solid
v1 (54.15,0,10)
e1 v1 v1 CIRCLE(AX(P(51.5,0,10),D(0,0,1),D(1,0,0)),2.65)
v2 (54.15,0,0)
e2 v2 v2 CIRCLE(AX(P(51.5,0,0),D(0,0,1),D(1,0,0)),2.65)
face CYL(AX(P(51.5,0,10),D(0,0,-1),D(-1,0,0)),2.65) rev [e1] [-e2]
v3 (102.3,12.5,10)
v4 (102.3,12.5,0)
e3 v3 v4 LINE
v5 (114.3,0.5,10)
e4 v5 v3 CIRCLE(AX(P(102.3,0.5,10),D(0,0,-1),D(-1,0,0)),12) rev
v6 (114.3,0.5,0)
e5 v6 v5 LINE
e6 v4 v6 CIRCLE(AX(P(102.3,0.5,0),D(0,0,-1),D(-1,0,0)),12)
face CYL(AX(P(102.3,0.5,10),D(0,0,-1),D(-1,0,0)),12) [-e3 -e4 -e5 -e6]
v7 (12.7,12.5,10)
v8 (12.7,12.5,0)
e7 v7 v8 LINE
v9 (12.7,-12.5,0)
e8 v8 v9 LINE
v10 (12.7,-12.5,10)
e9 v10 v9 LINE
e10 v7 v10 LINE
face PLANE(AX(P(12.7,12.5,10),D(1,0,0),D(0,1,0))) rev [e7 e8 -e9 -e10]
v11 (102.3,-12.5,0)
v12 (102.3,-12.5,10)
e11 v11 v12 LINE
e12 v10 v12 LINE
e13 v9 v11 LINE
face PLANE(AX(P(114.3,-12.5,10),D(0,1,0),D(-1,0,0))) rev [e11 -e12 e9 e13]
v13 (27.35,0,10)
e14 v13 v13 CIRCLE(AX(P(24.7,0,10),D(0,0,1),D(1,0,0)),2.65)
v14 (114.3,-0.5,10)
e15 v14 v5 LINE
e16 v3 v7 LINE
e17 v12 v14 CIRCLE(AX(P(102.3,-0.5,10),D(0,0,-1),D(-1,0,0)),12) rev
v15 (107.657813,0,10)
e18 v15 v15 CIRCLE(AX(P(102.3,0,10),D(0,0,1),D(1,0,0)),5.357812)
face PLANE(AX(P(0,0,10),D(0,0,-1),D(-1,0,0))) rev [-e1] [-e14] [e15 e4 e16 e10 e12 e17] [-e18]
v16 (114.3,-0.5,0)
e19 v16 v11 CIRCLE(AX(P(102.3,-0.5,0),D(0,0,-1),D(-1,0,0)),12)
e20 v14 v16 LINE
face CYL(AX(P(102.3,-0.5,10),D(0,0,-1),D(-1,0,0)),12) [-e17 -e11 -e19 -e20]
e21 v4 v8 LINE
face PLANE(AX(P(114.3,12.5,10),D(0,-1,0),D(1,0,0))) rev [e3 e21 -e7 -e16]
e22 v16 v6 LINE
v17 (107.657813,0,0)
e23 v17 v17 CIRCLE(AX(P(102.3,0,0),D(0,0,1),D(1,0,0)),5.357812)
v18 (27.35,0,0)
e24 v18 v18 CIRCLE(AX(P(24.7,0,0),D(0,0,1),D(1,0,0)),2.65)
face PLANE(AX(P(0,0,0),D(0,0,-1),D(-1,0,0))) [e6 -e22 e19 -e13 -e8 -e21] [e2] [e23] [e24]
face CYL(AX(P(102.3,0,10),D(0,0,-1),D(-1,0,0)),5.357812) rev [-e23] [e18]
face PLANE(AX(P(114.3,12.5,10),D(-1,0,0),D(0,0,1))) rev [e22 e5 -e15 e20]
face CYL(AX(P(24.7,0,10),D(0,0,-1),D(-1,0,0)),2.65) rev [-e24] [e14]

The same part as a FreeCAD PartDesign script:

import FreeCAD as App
import Part
import Sketcher


def edges_at(feature, points):
    """Names of the edges that pass closest to the given points."""
    edges = feature.Shape.Edges
    near = lambda p: min(range(len(edges)), key=lambda i: edges[i].distToShape(Part.Vertex(*p))[0])
    return sorted({f"Edge{near(p) + 1}" for p in points})

doc = App.newDocument("Part")
params = doc.addObject("Spreadsheet::Sheet", "Params")
for row, (alias, value) in enumerate([
    ("sketch1_diameter", "5.3 mm"),
    ("sketch1_height", "25 mm"),
    ("sketch1_width", "101.6 mm"),
    ("pad1_length", "10 mm"),
    ("fillet_radius", "12 mm"),
], start=1):
    params.set(f"A{row}", alias)
    params.set(f"B{row}", "=" + value)
    params.setAlias(f"B{row}", alias)

body = doc.addObject("PartDesign::Body", "Body")

# Sketch on XY plane
sketch1 = body.newObject("Sketcher::SketchObject", "Sketch")
sketch1.AttachmentSupport = (doc.getObject("XY_Plane"), [""])
sketch1.MapMode = "FlatFace"
sketch1.addGeometry(Part.LineSegment(App.Vector(12.7, 12.5, 0), App.Vector(12.7, -12.5, 0)), False)
sketch1.addGeometry(Part.LineSegment(App.Vector(12.7, -12.5, 0), App.Vector(114.3, -12.5, 0)), False)
sketch1.addGeometry(Part.LineSegment(App.Vector(114.3, -12.5, 0), App.Vector(114.3, 12.5, 0)), False)
sketch1.addGeometry(Part.LineSegment(App.Vector(114.3, 12.5, 0), App.Vector(12.7, 12.5, 0)), False)
sketch1.addGeometry(Part.Circle(App.Vector(24.7, 0, 0), App.Vector(0, 0, 1), 2.6), False)
sketch1.addGeometry(Part.Circle(App.Vector(51.5, 0, 0), App.Vector(0, 0, 1), 2.6), False)
sketch1.addGeometry(Part.Circle(App.Vector(102.3, 0, 0), App.Vector(0, 0, 1), 5.4), False)
sketch1.addConstraint(Sketcher.Constraint("Coincident", 0, 2, 1, 1))
sketch1.addConstraint(Sketcher.Constraint("Coincident", 1, 2, 2, 1))
sketch1.addConstraint(Sketcher.Constraint("Coincident", 2, 2, 3, 1))
sketch1.addConstraint(Sketcher.Constraint("Coincident", 3, 2, 0, 1))
sketch1.addConstraint(Sketcher.Constraint("Vertical", 0))
sketch1.addConstraint(Sketcher.Constraint("Horizontal", 1))
sketch1.addConstraint(Sketcher.Constraint("Vertical", 2))
sketch1.addConstraint(Sketcher.Constraint("Horizontal", 3))
sketch1.addConstraint(Sketcher.Constraint("Equal", 4, 5))
sketch1.addConstraint(Sketcher.Constraint("PointOnObject", 4, 3, -1))
sketch1.addConstraint(Sketcher.Constraint("PointOnObject", 5, 3, -1))
sketch1.addConstraint(Sketcher.Constraint("PointOnObject", 6, 3, -1))
sketch1.addConstraint(Sketcher.Constraint("Diameter", 4, 5.3))
sketch1.addConstraint(Sketcher.Constraint("DistanceY", 0, 2, 0, 1, 25.0))
sketch1.addConstraint(Sketcher.Constraint("DistanceX", 1, 1, 1, 2, 101.6))
sketch1.addConstraint(Sketcher.Constraint("DistanceX", 0, 2, 4, 3, 12.0))
sketch1.addConstraint(Sketcher.Constraint("DistanceX", 6, 3, 1, 2, 12.0))
sketch1.addConstraint(Sketcher.Constraint("DistanceX", -1, 1, 4, 3, 24.7))
sketch1.addConstraint(Sketcher.Constraint("DistanceX", -1, 1, 5, 3, 51.5))
sketch1.addConstraint(Sketcher.Constraint("DistanceY", 0, 2, -1, 1, 12.5))
sketch1.addConstraint(Sketcher.Constraint("Diameter", 6, 10.715625))
sketch1.setExpression("Constraints[12]", "Params.sketch1_diameter")
sketch1.setExpression("Constraints[13]", "Params.sketch1_height")
sketch1.setExpression("Constraints[14]", "Params.sketch1_width")
pad1 = body.newObject("PartDesign::Pad", "Pad")
pad1.Profile = sketch1
pad1.setExpression("Length", "Params.pad1_length")
doc.recompute()

fillet = body.newObject("PartDesign::Fillet", "Fillet")
fillet.Base = (pad1, edges_at(pad1, [(114.3, 12.5, 5), (114.3, -12.5, 5)]))
fillet.setExpression("Radius", "Params.fillet_radius")

doc.recompute()
